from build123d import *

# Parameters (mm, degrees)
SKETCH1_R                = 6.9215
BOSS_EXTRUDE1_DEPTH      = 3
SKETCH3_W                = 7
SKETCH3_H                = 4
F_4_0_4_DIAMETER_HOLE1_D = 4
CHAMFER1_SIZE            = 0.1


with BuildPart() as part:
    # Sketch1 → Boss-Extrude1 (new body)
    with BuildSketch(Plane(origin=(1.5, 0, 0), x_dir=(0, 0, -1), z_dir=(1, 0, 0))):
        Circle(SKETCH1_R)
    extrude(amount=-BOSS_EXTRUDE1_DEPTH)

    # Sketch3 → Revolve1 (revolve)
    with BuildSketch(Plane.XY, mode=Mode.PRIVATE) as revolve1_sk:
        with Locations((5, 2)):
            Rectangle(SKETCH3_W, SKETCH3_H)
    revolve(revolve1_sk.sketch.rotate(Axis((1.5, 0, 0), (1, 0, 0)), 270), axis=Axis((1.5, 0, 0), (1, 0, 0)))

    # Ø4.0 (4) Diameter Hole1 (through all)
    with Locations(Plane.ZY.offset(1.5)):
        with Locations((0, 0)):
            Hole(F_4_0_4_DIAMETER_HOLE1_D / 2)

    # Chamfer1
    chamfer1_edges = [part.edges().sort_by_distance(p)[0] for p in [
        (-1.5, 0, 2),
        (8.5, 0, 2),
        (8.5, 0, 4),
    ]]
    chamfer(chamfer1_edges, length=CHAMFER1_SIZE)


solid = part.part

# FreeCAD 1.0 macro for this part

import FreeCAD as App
import Part
import Sketcher

V = App.Vector
Q = App.Units.Quantity


def edges_at(feature, points):
    """Names of the edges that pass closest to the given points."""
    edges = feature.Shape.Edges
    near = lambda p: min(range(len(edges)), key=lambda i: edges[i].distToShape(Part.Vertex(*p))[0])
    return sorted({f"Edge{near(p) + 1}" for p in points})

doc = App.newDocument("Part")
body = doc.addObject("PartDesign::Body", "Body")

sketch1 = body.newObject("Sketcher::SketchObject", "Sketch")
sketch1.AttachmentSupport = (doc.getObject("YZ_Plane"), [""])
sketch1.MapMode = "FlatFace"
sketch1.AttachmentOffset = App.Placement(V(0, 0, 1.5), App.Rotation())
sketch1.addGeometry(Part.Circle(V(0, 0, 0), V(0, 0, 1), 7), False)
sketch1.addConstraint([
    Sketcher.Constraint("Coincident", 0, 3, -1, 1),
    Sketcher.Constraint("Diameter", 0, Q("13.843 mm")),
])
pad1 = body.newObject("PartDesign::Pad", "Pad")
pad1.Profile = sketch1
pad1.Length = 3
pad1.Reversed = True

sketch2 = body.newObject("Sketcher::SketchObject", "Sketch001")
sketch2.AttachmentSupport = (doc.getObject("XY_Plane"), [""])
sketch2.MapMode = "FlatFace"
sketch2.addGeometry([
    Part.LineSegment(V(1.5, 4, 0), V(1.5, 0, 0)),
    Part.LineSegment(V(1.5, 0, 0), V(8.5, 0, 0)),
    Part.LineSegment(V(8.5, 0, 0), V(8.5, 4, 0)),
    Part.LineSegment(V(8.5, 4, 0), V(1.5, 4, 0)),
], False)
sketch2.addConstraint([
    Sketcher.Constraint("Coincident", 0, 2, 1, 1),
    Sketcher.Constraint("Coincident", 1, 2, 2, 1),
    Sketcher.Constraint("Coincident", 2, 2, 3, 1),
    Sketcher.Constraint("Coincident", 3, 2, 0, 1),
    Sketcher.Constraint("Vertical", 0),
    Sketcher.Constraint("Horizontal", 1),
    Sketcher.Constraint("Vertical", 2),
    Sketcher.Constraint("Horizontal", 3),
    Sketcher.Constraint("PointOnObject", 0, 2, -1),
    Sketcher.Constraint("DistanceX", 1, 1, 1, 2, Q("7 mm")),
    Sketcher.Constraint("DistanceY", 0, 2, 0, 1, Q("4 mm")),
    Sketcher.Constraint("DistanceX", -1, 1, 0, 2, Q("1.5 mm")),
])
revolution = body.newObject("PartDesign::Revolution", "Revolution")
revolution.Profile = sketch2
revolution.ReferenceAxis = (sketch2, ["H_Axis"])
revolution.Angle = 360

sketch3 = body.newObject("Sketcher::SketchObject", "Sketch002")
sketch3.AttachmentSupport = (doc.getObject("YZ_Plane"), [""])
sketch3.MapMode = "FlatFace"
sketch3.AttachmentOffset = App.Placement(V(0, 0, -1.5), App.Rotation())
sketch3.addGeometry(Part.Circle(V(0, 0, 0), V(0, 0, 1), 2), False)
sketch3.addConstraint([
    Sketcher.Constraint("Coincident", 0, 3, -1, 1),
    Sketcher.Constraint("Diameter", 0, Q("4 mm")),
])
doc.recompute()
hole = body.newObject("PartDesign::Hole", "Hole")
hole.Profile = sketch3
hole.ThreadType = "None"
hole.Diameter = 4
hole.DepthType = "ThroughAll"
hole.Reversed = True
doc.recompute()

chamfer = body.newObject("PartDesign::Chamfer", "Chamfer")
chamfer.Base = (hole, edges_at(hole, [(-1.5, 0, 2), (8.5, 0, 2), (8.5, 0, 4)]))
chamfer.Size = 0.1

doc.recompute()
